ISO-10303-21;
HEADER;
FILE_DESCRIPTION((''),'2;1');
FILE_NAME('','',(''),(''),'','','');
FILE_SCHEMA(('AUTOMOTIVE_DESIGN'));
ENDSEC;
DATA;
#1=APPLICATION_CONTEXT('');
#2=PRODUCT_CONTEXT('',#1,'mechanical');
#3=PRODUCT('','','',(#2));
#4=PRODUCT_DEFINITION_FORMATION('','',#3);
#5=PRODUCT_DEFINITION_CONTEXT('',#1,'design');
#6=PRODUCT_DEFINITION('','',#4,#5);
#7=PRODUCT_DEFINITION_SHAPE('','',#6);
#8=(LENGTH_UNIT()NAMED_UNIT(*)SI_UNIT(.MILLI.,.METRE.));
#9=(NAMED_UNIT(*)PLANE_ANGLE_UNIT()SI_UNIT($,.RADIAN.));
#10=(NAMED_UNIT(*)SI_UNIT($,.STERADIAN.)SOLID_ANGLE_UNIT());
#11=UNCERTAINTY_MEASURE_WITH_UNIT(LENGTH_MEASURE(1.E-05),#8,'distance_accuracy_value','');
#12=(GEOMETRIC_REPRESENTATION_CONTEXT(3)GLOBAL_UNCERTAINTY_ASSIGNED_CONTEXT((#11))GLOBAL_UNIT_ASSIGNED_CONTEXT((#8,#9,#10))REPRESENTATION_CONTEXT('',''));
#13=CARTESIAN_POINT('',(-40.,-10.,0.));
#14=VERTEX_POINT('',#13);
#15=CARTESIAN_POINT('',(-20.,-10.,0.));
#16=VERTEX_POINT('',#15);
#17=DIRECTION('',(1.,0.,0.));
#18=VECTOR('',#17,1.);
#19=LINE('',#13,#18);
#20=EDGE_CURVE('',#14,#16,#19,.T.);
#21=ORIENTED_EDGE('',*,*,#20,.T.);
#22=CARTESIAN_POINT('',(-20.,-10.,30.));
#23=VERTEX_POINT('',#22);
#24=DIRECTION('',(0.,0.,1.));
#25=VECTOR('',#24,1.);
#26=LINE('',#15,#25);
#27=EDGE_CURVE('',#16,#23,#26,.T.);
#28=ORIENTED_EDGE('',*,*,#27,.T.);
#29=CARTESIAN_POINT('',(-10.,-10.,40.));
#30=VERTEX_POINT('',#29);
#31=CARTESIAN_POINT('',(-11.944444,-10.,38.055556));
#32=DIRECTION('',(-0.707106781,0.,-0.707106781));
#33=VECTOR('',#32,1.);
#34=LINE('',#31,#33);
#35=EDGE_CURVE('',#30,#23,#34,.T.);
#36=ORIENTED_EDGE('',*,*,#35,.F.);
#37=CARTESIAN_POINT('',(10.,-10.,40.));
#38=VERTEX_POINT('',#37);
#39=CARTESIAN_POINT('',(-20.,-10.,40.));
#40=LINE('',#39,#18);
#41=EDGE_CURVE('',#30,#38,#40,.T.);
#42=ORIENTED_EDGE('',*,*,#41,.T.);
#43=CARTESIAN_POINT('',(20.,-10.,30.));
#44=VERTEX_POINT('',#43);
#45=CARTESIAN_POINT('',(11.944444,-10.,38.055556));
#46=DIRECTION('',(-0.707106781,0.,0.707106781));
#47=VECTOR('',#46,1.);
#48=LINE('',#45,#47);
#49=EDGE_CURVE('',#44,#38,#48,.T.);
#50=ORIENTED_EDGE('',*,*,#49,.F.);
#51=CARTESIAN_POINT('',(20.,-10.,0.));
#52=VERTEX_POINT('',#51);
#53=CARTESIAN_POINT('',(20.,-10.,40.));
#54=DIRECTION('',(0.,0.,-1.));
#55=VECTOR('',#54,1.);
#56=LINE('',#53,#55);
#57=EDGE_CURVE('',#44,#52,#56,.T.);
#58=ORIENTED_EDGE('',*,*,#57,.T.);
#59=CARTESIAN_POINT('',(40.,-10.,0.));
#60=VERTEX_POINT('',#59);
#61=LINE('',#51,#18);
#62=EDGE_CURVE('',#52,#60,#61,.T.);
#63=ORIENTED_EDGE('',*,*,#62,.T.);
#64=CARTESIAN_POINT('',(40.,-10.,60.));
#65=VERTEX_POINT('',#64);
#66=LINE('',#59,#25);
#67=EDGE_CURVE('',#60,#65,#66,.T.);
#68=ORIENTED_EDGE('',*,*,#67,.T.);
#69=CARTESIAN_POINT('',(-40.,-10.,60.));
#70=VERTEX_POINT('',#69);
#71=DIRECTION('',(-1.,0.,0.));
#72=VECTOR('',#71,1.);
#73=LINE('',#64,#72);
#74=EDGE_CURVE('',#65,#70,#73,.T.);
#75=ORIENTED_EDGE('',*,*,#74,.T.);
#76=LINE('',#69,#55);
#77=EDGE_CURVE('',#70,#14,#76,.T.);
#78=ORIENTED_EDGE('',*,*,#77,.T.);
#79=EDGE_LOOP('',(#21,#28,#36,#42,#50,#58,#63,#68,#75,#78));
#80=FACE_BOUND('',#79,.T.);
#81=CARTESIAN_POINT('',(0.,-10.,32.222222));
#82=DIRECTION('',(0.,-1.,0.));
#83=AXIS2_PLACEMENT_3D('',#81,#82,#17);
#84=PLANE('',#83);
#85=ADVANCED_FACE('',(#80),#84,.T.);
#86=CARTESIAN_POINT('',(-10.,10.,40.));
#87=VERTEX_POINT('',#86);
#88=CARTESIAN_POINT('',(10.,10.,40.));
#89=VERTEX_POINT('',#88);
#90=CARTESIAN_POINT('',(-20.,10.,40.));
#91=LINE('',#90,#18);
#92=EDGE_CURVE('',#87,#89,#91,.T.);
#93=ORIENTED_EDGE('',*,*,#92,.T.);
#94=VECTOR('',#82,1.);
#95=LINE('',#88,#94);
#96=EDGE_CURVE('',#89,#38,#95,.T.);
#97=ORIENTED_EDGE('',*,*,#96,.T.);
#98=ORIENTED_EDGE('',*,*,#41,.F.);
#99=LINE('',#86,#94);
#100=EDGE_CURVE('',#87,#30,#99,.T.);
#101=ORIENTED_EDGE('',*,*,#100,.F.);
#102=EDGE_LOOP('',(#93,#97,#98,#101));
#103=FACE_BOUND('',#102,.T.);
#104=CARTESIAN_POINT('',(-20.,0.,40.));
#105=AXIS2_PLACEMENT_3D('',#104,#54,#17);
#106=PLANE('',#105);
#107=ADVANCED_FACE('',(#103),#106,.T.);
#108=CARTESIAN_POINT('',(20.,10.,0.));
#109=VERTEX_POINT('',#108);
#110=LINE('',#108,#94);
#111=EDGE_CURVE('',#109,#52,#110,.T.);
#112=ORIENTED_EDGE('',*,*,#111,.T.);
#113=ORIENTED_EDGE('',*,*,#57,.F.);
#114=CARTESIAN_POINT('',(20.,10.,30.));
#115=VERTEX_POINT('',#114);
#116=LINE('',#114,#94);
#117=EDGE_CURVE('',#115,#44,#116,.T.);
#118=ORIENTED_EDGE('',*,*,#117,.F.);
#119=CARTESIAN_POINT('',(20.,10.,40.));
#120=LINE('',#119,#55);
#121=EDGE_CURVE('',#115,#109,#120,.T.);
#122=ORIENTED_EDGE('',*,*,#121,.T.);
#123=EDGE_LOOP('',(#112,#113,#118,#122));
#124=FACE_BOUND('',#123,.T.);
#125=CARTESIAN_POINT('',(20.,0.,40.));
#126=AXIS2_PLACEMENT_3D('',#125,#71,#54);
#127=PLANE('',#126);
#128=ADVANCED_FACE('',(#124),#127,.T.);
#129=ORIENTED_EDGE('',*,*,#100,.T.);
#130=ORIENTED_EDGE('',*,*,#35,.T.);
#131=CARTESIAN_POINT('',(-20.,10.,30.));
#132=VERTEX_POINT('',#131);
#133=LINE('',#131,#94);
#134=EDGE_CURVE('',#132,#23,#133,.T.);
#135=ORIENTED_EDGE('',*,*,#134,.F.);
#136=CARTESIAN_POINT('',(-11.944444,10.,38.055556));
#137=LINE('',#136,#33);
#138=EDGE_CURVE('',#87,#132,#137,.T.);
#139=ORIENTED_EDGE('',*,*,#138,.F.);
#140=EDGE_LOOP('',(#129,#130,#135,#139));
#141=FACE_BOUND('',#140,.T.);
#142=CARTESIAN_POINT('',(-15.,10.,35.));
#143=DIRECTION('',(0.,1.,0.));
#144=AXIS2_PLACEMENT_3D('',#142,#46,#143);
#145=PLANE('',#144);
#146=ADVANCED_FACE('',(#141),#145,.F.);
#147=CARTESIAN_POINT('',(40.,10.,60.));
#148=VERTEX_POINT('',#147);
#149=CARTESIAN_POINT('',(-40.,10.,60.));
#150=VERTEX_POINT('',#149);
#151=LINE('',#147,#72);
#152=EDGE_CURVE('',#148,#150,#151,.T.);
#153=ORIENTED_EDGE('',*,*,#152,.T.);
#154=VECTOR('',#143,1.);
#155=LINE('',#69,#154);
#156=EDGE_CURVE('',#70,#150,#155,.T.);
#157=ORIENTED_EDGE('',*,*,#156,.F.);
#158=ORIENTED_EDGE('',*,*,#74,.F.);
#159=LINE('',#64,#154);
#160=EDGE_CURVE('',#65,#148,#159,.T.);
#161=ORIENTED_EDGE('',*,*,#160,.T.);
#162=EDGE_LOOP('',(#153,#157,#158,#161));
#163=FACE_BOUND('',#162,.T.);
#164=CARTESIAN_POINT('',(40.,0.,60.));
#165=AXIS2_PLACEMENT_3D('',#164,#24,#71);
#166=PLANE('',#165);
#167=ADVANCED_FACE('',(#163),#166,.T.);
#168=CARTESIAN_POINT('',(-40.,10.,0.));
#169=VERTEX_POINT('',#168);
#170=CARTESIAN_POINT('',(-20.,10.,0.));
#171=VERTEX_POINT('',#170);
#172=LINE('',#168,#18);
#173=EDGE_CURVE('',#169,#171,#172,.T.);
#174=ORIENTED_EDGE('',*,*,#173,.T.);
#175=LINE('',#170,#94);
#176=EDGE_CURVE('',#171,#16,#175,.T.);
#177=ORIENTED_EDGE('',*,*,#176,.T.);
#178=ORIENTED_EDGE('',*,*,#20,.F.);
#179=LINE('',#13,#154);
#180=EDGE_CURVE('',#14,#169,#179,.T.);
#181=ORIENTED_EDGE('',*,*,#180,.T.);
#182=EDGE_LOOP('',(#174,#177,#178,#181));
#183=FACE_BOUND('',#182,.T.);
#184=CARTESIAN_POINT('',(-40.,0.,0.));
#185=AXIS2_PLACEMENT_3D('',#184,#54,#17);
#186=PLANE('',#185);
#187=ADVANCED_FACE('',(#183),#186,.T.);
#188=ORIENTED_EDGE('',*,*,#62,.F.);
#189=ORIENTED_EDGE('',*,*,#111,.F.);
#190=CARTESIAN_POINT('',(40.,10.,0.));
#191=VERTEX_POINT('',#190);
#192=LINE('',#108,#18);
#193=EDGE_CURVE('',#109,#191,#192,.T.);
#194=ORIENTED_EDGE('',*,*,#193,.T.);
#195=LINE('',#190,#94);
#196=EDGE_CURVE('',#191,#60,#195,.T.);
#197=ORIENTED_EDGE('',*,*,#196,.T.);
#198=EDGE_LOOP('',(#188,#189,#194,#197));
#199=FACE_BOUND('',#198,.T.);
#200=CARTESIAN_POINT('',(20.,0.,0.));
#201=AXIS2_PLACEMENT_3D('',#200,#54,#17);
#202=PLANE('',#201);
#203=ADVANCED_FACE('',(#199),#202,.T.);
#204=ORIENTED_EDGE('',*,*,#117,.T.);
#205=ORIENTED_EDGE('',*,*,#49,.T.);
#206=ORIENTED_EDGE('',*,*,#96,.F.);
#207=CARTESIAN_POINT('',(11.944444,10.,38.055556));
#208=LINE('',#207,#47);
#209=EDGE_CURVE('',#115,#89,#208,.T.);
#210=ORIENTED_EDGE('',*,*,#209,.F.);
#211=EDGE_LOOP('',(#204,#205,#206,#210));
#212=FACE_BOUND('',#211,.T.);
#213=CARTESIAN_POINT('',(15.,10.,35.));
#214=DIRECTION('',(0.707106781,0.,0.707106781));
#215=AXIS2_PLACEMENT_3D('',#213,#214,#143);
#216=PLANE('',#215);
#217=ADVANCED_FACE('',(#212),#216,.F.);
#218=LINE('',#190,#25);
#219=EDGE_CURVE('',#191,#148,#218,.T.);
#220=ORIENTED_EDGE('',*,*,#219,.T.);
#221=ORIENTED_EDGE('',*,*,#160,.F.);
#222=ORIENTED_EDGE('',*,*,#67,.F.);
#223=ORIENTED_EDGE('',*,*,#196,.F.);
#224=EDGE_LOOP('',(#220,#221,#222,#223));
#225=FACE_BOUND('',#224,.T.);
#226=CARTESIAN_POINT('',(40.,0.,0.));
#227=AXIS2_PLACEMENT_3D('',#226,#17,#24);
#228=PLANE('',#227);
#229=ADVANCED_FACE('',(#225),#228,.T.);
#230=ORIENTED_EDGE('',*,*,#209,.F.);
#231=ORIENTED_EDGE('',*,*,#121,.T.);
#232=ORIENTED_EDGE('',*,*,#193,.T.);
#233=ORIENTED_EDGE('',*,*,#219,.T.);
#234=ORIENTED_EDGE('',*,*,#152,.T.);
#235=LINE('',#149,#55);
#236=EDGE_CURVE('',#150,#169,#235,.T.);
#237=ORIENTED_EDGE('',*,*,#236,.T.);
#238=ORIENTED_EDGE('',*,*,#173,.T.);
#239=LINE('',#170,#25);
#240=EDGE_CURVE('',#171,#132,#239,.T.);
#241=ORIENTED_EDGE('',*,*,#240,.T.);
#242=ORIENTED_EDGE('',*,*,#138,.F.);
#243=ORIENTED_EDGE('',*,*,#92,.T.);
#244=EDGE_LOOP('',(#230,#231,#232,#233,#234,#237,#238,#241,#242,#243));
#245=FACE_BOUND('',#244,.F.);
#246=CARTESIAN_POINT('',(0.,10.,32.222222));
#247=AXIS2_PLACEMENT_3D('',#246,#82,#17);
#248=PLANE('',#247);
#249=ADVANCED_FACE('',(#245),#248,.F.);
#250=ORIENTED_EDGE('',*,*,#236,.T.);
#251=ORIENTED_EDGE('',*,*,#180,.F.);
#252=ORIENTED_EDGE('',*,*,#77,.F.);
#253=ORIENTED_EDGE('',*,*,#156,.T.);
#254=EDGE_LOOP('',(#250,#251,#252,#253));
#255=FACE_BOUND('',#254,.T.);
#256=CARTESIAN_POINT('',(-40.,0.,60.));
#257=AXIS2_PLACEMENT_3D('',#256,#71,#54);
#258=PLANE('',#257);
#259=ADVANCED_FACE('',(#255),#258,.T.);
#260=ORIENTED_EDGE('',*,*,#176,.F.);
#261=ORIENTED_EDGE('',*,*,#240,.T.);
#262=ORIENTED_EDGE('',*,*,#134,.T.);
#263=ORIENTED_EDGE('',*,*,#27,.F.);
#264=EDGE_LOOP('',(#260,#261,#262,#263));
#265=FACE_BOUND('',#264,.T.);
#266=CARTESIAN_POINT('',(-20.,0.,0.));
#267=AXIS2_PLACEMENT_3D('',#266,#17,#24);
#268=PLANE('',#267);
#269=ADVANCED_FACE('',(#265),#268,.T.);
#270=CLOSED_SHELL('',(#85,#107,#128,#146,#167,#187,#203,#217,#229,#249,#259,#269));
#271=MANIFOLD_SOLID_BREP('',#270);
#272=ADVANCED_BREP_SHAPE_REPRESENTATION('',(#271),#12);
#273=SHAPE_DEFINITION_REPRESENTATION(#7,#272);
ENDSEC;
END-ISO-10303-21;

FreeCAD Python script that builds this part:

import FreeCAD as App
import Part
import Sketcher


def edges_at(feature, points):
    """Names of the edges that pass closest to the given points."""
    edges = feature.Shape.Edges
    near = lambda p: min(range(len(edges)), key=lambda i: edges[i].distToShape(Part.Vertex(*p))[0])
    return sorted({f"Edge{near(p) + 1}" for p in points})

doc = App.newDocument("Part")
body = doc.addObject("PartDesign::Body", "Body")

# Sketch on XZ plane
sketch1 = doc.addObject("Sketcher::SketchObject", "Sketch")
body.addObject(sketch1)
sketch1.AttachmentSupport = (doc.XZ_Plane, [""])
sketch1.MapMode = "FlatFace"
sketch1.addGeometry(Part.LineSegment(App.Vector(-40, 0, 0), App.Vector(-20, 0, 0)), False)
sketch1.addGeometry(Part.LineSegment(App.Vector(-20, 0, 0), App.Vector(-20, 40, 0)), False)
sketch1.addGeometry(Part.LineSegment(App.Vector(-20, 40, 0), App.Vector(20, 40, 0)), False)
sketch1.addGeometry(Part.LineSegment(App.Vector(20, 40, 0), App.Vector(20, 0, 0)), False)
sketch1.addGeometry(Part.LineSegment(App.Vector(20, 0, 0), App.Vector(40, 0, 0)), False)
sketch1.addGeometry(Part.LineSegment(App.Vector(40, 0, 0), App.Vector(40, 60, 0)), False)
sketch1.addGeometry(Part.LineSegment(App.Vector(40, 60, 0), App.Vector(-40, 60, 0)), False)
sketch1.addGeometry(Part.LineSegment(App.Vector(-40, 60, 0), App.Vector(-40, 0, 0)), False)
sketch1.addConstraint(Sketcher.Constraint("Coincident", 0, 2, 1, 1))
sketch1.addConstraint(Sketcher.Constraint("Coincident", 1, 2, 2, 1))
sketch1.addConstraint(Sketcher.Constraint("Coincident", 2, 2, 3, 1))
sketch1.addConstraint(Sketcher.Constraint("Coincident", 3, 2, 4, 1))
sketch1.addConstraint(Sketcher.Constraint("Coincident", 4, 2, 5, 1))
sketch1.addConstraint(Sketcher.Constraint("Coincident", 5, 2, 6, 1))
sketch1.addConstraint(Sketcher.Constraint("Coincident", 6, 2, 7, 1))
sketch1.addConstraint(Sketcher.Constraint("Coincident", 7, 2, 0, 1))
sketch1.addConstraint(Sketcher.Constraint("Horizontal", 0))
sketch1.addConstraint(Sketcher.Constraint("Vertical", 1))
sketch1.addConstraint(Sketcher.Constraint("Horizontal", 2))
sketch1.addConstraint(Sketcher.Constraint("Vertical", 3))
sketch1.addConstraint(Sketcher.Constraint("Horizontal", 4))
sketch1.addConstraint(Sketcher.Constraint("Vertical", 5))
sketch1.addConstraint(Sketcher.Constraint("Horizontal", 6))
sketch1.addConstraint(Sketcher.Constraint("Vertical", 7))
sketch1.addConstraint(Sketcher.Constraint("Symmetric", 0, 2, 3, 2, -1, 1))
sketch1.addConstraint(Sketcher.Constraint("Symmetric", 4, 2, 7, 2, -2))
sketch1.addConstraint(Sketcher.Constraint("Equal", 2, 1))
sketch1.addConstraint(Sketcher.Constraint("DistanceX", 0, 1, 0, 2, 20.0))
sketch1.addConstraint(Sketcher.Constraint("DistanceX", 2, 1, 2, 2, 40.0))
sketch1.addConstraint(Sketcher.Constraint("DistanceY", 5, 1, 5, 2, 60.0))
pad1 = doc.addObject("PartDesign::Pad", "Pad")
body.addObject(pad1)
pad1.Profile = sketch1
pad1.Length = 20
pad1.Midplane = True
doc.recompute()

chamfer = doc.addObject("PartDesign::Chamfer", "Chamfer")
body.addObject(chamfer)
chamfer.Base = (pad1, edges_at(pad1, [(-20, 0, 40), (20, 0, 40)]))
chamfer.Size = 10

doc.recompute()
